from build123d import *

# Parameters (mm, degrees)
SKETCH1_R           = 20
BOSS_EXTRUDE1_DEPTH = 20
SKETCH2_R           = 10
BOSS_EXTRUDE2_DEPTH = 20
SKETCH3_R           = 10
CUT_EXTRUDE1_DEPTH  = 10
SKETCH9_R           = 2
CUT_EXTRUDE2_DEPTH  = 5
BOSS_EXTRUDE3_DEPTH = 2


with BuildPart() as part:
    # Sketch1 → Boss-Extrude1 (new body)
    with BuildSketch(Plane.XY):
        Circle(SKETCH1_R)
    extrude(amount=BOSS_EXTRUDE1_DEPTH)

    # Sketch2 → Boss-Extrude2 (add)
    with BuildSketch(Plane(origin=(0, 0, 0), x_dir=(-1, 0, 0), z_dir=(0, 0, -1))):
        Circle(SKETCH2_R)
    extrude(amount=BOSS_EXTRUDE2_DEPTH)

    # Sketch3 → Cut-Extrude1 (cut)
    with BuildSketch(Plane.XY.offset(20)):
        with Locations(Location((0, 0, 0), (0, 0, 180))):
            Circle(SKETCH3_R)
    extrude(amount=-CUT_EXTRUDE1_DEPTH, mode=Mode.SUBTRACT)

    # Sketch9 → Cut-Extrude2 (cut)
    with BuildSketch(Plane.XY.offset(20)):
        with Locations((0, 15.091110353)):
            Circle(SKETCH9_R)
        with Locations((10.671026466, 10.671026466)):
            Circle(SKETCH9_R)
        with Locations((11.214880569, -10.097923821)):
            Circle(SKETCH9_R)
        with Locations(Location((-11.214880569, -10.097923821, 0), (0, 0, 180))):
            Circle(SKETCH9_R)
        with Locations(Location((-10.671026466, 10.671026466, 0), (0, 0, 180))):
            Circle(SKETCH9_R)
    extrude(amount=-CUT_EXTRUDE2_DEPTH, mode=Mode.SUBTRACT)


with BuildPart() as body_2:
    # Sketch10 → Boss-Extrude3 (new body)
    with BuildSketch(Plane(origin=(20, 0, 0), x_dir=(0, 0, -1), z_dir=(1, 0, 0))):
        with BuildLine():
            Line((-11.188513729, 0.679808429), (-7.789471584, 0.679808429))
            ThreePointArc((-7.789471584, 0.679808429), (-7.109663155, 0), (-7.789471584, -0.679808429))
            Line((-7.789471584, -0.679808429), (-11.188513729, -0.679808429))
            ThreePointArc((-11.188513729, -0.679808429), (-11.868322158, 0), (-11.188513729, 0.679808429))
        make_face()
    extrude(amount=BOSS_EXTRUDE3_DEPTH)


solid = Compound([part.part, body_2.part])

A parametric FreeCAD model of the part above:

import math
import FreeCAD as App
import Part
import Sketcher
from FreeCAD import Vector
Q = App.Units.Quantity

doc = App.newDocument("Part")
body = doc.addObject("PartDesign::Body", "Body")

sketch1 = body.newObject("Sketcher::SketchObject", "Sketch")
sketch1.AttachmentSupport = (doc.getObject("XY_Plane"), [""])
sketch1.MapMode = "FlatFace"
sketch1.addGeometry(Part.Circle(Vector(0, 0, 0), Vector(0, 0, 1), 20), False)
sketch1.addConstraint([
    Sketcher.Constraint("Coincident", 0, 3, -1, 1),
    Sketcher.Constraint("Diameter", 0, Q("40 mm")),
])
pad1 = body.newObject("PartDesign::Pad", "Pad")
pad1.Profile = sketch1
pad1.Length = 20

sketch2 = body.newObject("Sketcher::SketchObject", "Sketch001")
sketch2.AttachmentSupport = (doc.getObject("XY_Plane"), [""])
sketch2.MapMode = "FlatFace"
sketch2.addGeometry(Part.Circle(Vector(0, 0, 0), Vector(0, 0, 1), 10), False)
sketch2.addConstraint([
    Sketcher.Constraint("Coincident", 0, 3, -1, 1),
    Sketcher.Constraint("Diameter", 0, Q("20 mm")),
])
pad2 = body.newObject("PartDesign::Pad", "Pad001")
pad2.Profile = sketch2
pad2.Length = 20
pad2.Reversed = True

sketch3 = body.newObject("Sketcher::SketchObject", "Sketch002")
sketch3.AttachmentSupport = (doc.getObject("XY_Plane"), [""])
sketch3.MapMode = "FlatFace"
sketch3.AttachmentOffset = App.Placement(Vector(0, 0, 20), App.Rotation())
sketch3.addGeometry(Part.Circle(Vector(0, 0, 0), Vector(0, 0, 1), 10), False)
sketch3.addConstraint([
    Sketcher.Constraint("Coincident", 0, 3, -1, 1),
    Sketcher.Constraint("Diameter", 0, Q("20 mm")),
])
pocket1 = body.newObject("PartDesign::Pocket", "Pocket")
pocket1.Profile = sketch3
pocket1.Length = 10

sketch4 = body.newObject("Sketcher::SketchObject", "Sketch003")
sketch4.AttachmentSupport = (doc.getObject("XY_Plane"), [""])
sketch4.MapMode = "FlatFace"
sketch4.AttachmentOffset = App.Placement(Vector(0, 0, 20), App.Rotation())
sketch4.addGeometry([
    Part.Circle(Vector(0, 15.09111, 0), Vector(0, 0, 1), 2),
    Part.Circle(Vector(10.671026, 10.671026, 0), Vector(0, 0, 1), 2),
    Part.Circle(Vector(11.214881, -10.097924, 0), Vector(0, 0, 1), 2),
    Part.Circle(Vector(-11.214881, -10.097924, 0), Vector(0, 0, 1), 2),
    Part.Circle(Vector(-10.671026, 10.671026, 0), Vector(0, 0, 1), 2),
], False)
sketch4.addConstraint([
    Sketcher.Constraint("Equal", 0, 1),
    Sketcher.Constraint("Equal", 1, 2),
    Sketcher.Constraint("Equal", 2, 3),
    Sketcher.Constraint("Equal", 3, 4),
    Sketcher.Constraint("Symmetric", 2, 3, 3, 3, -2),
    Sketcher.Constraint("Symmetric", 1, 3, 4, 3, -2),
    Sketcher.Constraint("PointOnObject", 0, 3, -2),
    Sketcher.Constraint("Diameter", 0, Q("4 mm")),
    Sketcher.Constraint("DistanceY", -1, 1, 0, 3, Q("15.09111 mm")),
    Sketcher.Constraint("DistanceX", -1, 1, 2, 3, Q("11.214881 mm")),
    Sketcher.Constraint("DistanceY", 2, 3, 1, 3, Q("20.76895 mm")),
    Sketcher.Constraint("DistanceX", -1, 1, 1, 3, Q("10.671026 mm")),
    Sketcher.Constraint("DistanceY", -1, 1, 1, 3, Q("10.671026 mm")),
])
pocket2 = body.newObject("PartDesign::Pocket", "Pocket001")
pocket2.Profile = sketch4
pocket2.Length = 5
body2 = doc.addObject("PartDesign::Body", "Body001")

sketch5 = body2.newObject("Sketcher::SketchObject", "Sketch004")
sketch5.AttachmentSupport = (doc.getObject("YZ_Plane001"), [""])
sketch5.MapMode = "FlatFace"
sketch5.AttachmentOffset = App.Placement(Vector(0, 0, 20), App.Rotation())
sketch5.addGeometry([
    Part.LineSegment(Vector(0.679808, 7.789472, 0), Vector(0.679808, 11.188514, 0)),
    Part.ArcOfCircle(Part.Circle(Vector(0, 11.188514, 0), Vector(0, 0, 1), 0.679808), math.radians(0), math.radians(180)),
    Part.LineSegment(Vector(-0.679808, 11.188514, 0), Vector(-0.679808, 7.789472, 0)),
    Part.ArcOfCircle(Part.Circle(Vector(0, 7.789472, 0), Vector(0, 0, 1), 0.679808), math.radians(180), math.radians(360)),
], False)
sketch5.addConstraint([
    Sketcher.Constraint("Tangent", 0, 2, 1, 1),
    Sketcher.Constraint("Tangent", 1, 2, 2, 1),
    Sketcher.Constraint("Tangent", 2, 2, 3, 1),
    Sketcher.Constraint("Tangent", 3, 2, 0, 1),
    Sketcher.Constraint("Vertical", 0),
    Sketcher.Constraint("Vertical", 2),
    Sketcher.Constraint("PointOnObject", 1, 3, -2),
    Sketcher.Constraint("Radius", 1, Q("0.679808 mm")),
    Sketcher.Constraint("DistanceY", 0, 1, 0, 2, Q("3.399042 mm")),
    Sketcher.Constraint("DistanceY", -1, 1, 3, 3, Q("7.789472 mm")),
])
pad3 = body2.newObject("PartDesign::Pad", "Pad002")
pad3.Profile = sketch5
pad3.Length = 2

doc.recompute()
